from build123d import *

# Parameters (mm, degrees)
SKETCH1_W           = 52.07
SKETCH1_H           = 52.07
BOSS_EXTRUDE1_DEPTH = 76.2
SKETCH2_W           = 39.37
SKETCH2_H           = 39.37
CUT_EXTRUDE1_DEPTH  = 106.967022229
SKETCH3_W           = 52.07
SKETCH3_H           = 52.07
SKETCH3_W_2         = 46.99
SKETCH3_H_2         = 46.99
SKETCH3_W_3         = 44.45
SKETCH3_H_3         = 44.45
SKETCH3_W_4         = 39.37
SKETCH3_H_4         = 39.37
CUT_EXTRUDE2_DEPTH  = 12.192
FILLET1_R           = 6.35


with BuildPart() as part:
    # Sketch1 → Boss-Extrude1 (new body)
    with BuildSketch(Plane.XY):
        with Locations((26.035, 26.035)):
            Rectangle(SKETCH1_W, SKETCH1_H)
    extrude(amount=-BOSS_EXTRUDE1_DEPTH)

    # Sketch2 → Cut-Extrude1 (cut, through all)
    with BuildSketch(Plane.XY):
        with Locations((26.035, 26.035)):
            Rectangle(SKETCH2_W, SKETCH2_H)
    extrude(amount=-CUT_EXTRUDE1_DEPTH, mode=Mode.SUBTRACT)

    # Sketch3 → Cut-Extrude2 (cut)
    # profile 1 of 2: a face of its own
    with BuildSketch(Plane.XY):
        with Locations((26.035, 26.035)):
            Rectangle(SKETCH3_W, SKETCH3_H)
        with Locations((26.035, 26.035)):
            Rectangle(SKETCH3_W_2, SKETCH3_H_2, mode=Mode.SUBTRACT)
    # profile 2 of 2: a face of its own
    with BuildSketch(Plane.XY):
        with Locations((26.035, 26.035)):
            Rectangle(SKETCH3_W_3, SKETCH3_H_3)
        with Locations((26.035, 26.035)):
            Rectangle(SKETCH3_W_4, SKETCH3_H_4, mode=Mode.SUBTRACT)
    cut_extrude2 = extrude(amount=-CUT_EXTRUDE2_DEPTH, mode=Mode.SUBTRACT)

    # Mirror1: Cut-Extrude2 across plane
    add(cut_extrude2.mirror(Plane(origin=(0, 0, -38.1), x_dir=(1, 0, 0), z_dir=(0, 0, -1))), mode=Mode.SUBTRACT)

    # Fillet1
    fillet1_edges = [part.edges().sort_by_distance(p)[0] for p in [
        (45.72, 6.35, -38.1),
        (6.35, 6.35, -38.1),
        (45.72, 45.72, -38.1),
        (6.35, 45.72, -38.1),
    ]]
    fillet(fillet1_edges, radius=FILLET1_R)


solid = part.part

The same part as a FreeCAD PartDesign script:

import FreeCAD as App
import Part
import Sketcher

V = App.Vector
Q = App.Units.Quantity


def edges_at(feature, points):
    """Names of the edges that pass closest to the given points."""
    edges = feature.Shape.Edges
    near = lambda p: min(range(len(edges)), key=lambda i: edges[i].distToShape(Part.Vertex(*p))[0])
    return sorted({f"Edge{near(p) + 1}" for p in points})

doc = App.newDocument("Part")
body = doc.addObject("PartDesign::Body", "Body")

# Sketch on XY plane
sketch1 = body.newObject("Sketcher::SketchObject", "Sketch")
sketch1.AttachmentSupport = (doc.getObject("XY_Plane"), [""])
sketch1.MapMode = "FlatFace"
sketch1.addGeometry(Part.LineSegment(V(0, 52, 0), V(0, 0, 0)), False)
sketch1.addGeometry(Part.LineSegment(V(0, 0, 0), V(52, 0, 0)), False)
sketch1.addGeometry(Part.LineSegment(V(52, 0, 0), V(52, 52, 0)), False)
sketch1.addGeometry(Part.LineSegment(V(52, 52, 0), V(0, 52, 0)), False)
sketch1.addConstraint(Sketcher.Constraint("Coincident", 0, 2, 1, 1))
sketch1.addConstraint(Sketcher.Constraint("Coincident", 1, 2, 2, 1))
sketch1.addConstraint(Sketcher.Constraint("Coincident", 2, 2, 3, 1))
sketch1.addConstraint(Sketcher.Constraint("Coincident", 3, 2, 0, 1))
sketch1.addConstraint(Sketcher.Constraint("Vertical", 0))
sketch1.addConstraint(Sketcher.Constraint("Horizontal", 1))
sketch1.addConstraint(Sketcher.Constraint("Vertical", 2))
sketch1.addConstraint(Sketcher.Constraint("Horizontal", 3))
sketch1.addConstraint(Sketcher.Constraint("Coincident", 0, 2, -1, 1))
sketch1.addConstraint(Sketcher.Constraint("Equal", 3, 0))
sketch1.addConstraint(Sketcher.Constraint("DistanceX", 1, 1, 1, 2, Q("2.05 in")))
pad1 = body.newObject("PartDesign::Pad", "Pad")
pad1.Profile = sketch1
pad1.Length = Q("3 in")
pad1.Reversed = True

# Sketch on XY plane
sketch2 = body.newObject("Sketcher::SketchObject", "Sketch001")
sketch2.AttachmentSupport = (doc.getObject("XY_Plane"), [""])
sketch2.MapMode = "FlatFace"
sketch2.addGeometry(Part.LineSegment(V(6, 46, 0), V(6, 6, 0)), False)
sketch2.addGeometry(Part.LineSegment(V(6, 6, 0), V(46, 6, 0)), False)
sketch2.addGeometry(Part.LineSegment(V(46, 6, 0), V(46, 46, 0)), False)
sketch2.addGeometry(Part.LineSegment(V(46, 46, 0), V(6, 46, 0)), False)
sketch2.addConstraint(Sketcher.Constraint("Coincident", 0, 2, 1, 1))
sketch2.addConstraint(Sketcher.Constraint("Coincident", 1, 2, 2, 1))
sketch2.addConstraint(Sketcher.Constraint("Coincident", 2, 2, 3, 1))
sketch2.addConstraint(Sketcher.Constraint("Coincident", 3, 2, 0, 1))
sketch2.addConstraint(Sketcher.Constraint("Vertical", 0))
sketch2.addConstraint(Sketcher.Constraint("Horizontal", 1))
sketch2.addConstraint(Sketcher.Constraint("Vertical", 2))
sketch2.addConstraint(Sketcher.Constraint("Horizontal", 3))
sketch2.addConstraint(Sketcher.Constraint("Equal", 3, 0))
sketch2.addConstraint(Sketcher.Constraint("DistanceX", 1, 1, 1, 2, Q("1.55 in")))
sketch2.addConstraint(Sketcher.Constraint("DistanceX", -1, 1, 1, 2, Q("1.8 in")))
sketch2.addConstraint(Sketcher.Constraint("DistanceY", -1, 1, 2, 2, Q("1.8 in")))
pocket1 = body.newObject("PartDesign::Pocket", "Pocket")
pocket1.Profile = sketch2
pocket1.Type = "ThroughAll"

# Sketch on XY plane
sketch3 = body.newObject("Sketcher::SketchObject", "Sketch002")
sketch3.AttachmentSupport = (doc.getObject("XY_Plane"), [""])
sketch3.MapMode = "FlatFace"
sketch3.addGeometry(Part.LineSegment(V(0, 52, 0), V(0, 0, 0)), False)
sketch3.addGeometry(Part.LineSegment(V(0, 0, 0), V(52, 0, 0)), False)
sketch3.addGeometry(Part.LineSegment(V(52, 0, 0), V(52, 52, 0)), False)
sketch3.addGeometry(Part.LineSegment(V(52, 52, 0), V(0, 52, 0)), False)
sketch3.addGeometry(Part.LineSegment(V(50, 3, 0), V(3, 3, 0)), False)
sketch3.addGeometry(Part.LineSegment(V(3, 3, 0), V(3, 50, 0)), False)
sketch3.addGeometry(Part.LineSegment(V(3, 50, 0), V(50, 50, 0)), False)
sketch3.addGeometry(Part.LineSegment(V(50, 50, 0), V(50, 3, 0)), False)
sketch3.addGeometry(Part.LineSegment(V(4, 48, 0), V(4, 4, 0)), False)
sketch3.addGeometry(Part.LineSegment(V(4, 4, 0), V(48, 4, 0)), False)
sketch3.addGeometry(Part.LineSegment(V(48, 4, 0), V(48, 48, 0)), False)
sketch3.addGeometry(Part.LineSegment(V(48, 48, 0), V(4, 48, 0)), False)
sketch3.addGeometry(Part.LineSegment(V(46, 6, 0), V(6, 6, 0)), False)
sketch3.addGeometry(Part.LineSegment(V(6, 6, 0), V(6, 46, 0)), False)
sketch3.addGeometry(Part.LineSegment(V(6, 46, 0), V(46, 46, 0)), False)
sketch3.addGeometry(Part.LineSegment(V(46, 46, 0), V(46, 6, 0)), False)
sketch3.addConstraint(Sketcher.Constraint("Coincident", 0, 2, 1, 1))
sketch3.addConstraint(Sketcher.Constraint("Coincident", 1, 2, 2, 1))
sketch3.addConstraint(Sketcher.Constraint("Coincident", 2, 2, 3, 1))
sketch3.addConstraint(Sketcher.Constraint("Coincident", 3, 2, 0, 1))
sketch3.addConstraint(Sketcher.Constraint("Coincident", 4, 2, 5, 1))
sketch3.addConstraint(Sketcher.Constraint("Coincident", 5, 2, 6, 1))
sketch3.addConstraint(Sketcher.Constraint("Coincident", 6, 2, 7, 1))
sketch3.addConstraint(Sketcher.Constraint("Coincident", 7, 2, 4, 1))
sketch3.addConstraint(Sketcher.Constraint("Coincident", 8, 2, 9, 1))
sketch3.addConstraint(Sketcher.Constraint("Coincident", 9, 2, 10, 1))
sketch3.addConstraint(Sketcher.Constraint("Coincident", 10, 2, 11, 1))
sketch3.addConstraint(Sketcher.Constraint("Coincident", 11, 2, 8, 1))
sketch3.addConstraint(Sketcher.Constraint("Coincident", 12, 2, 13, 1))
sketch3.addConstraint(Sketcher.Constraint("Coincident", 13, 2, 14, 1))
sketch3.addConstraint(Sketcher.Constraint("Coincident", 14, 2, 15, 1))
sketch3.addConstraint(Sketcher.Constraint("Coincident", 15, 2, 12, 1))
sketch3.addConstraint(Sketcher.Constraint("Vertical", 0))
sketch3.addConstraint(Sketcher.Constraint("Horizontal", 1))
sketch3.addConstraint(Sketcher.Constraint("Vertical", 2))
sketch3.addConstraint(Sketcher.Constraint("Horizontal", 3))
sketch3.addConstraint(Sketcher.Constraint("Horizontal", 4))
sketch3.addConstraint(Sketcher.Constraint("Vertical", 5))
sketch3.addConstraint(Sketcher.Constraint("Horizontal", 6))
sketch3.addConstraint(Sketcher.Constraint("Vertical", 7))
sketch3.addConstraint(Sketcher.Constraint("Vertical", 8))
sketch3.addConstraint(Sketcher.Constraint("Horizontal", 9))
sketch3.addConstraint(Sketcher.Constraint("Vertical", 10))
sketch3.addConstraint(Sketcher.Constraint("Horizontal", 11))
sketch3.addConstraint(Sketcher.Constraint("Horizontal", 12))
sketch3.addConstraint(Sketcher.Constraint("Vertical", 13))
sketch3.addConstraint(Sketcher.Constraint("Horizontal", 14))
sketch3.addConstraint(Sketcher.Constraint("Vertical", 15))
sketch3.addConstraint(Sketcher.Constraint("Coincident", 0, 2, -1, 1))
sketch3.addConstraint(Sketcher.Constraint("Equal", 3, 0))
sketch3.addConstraint(Sketcher.Constraint("Equal", 6, 5))
sketch3.addConstraint(Sketcher.Constraint("Equal", 11, 8))
sketch3.addConstraint(Sketcher.Constraint("Equal", 14, 13))
sketch3.addConstraint(Sketcher.Constraint("DistanceX", 1, 1, 1, 2, Q("2.05 in")))
sketch3.addConstraint(Sketcher.Constraint("DistanceX", 4, 2, 4, 1, Q("1.85 in")))
sketch3.addConstraint(Sketcher.Constraint("DistanceX", 9, 1, 9, 2, Q("1.75 in")))
sketch3.addConstraint(Sketcher.Constraint("DistanceX", 12, 2, 12, 1, Q("1.55 in")))
sketch3.addConstraint(Sketcher.Constraint("DistanceX", -1, 1, 4, 2, Q("0.1 in")))
sketch3.addConstraint(Sketcher.Constraint("DistanceY", -1, 1, 4, 2, Q("0.1 in")))
sketch3.addConstraint(Sketcher.Constraint("DistanceX", -1, 1, 9, 2, Q("1.9 in")))
sketch3.addConstraint(Sketcher.Constraint("DistanceY", -1, 1, 10, 2, Q("1.9 in")))
sketch3.addConstraint(Sketcher.Constraint("DistanceY", -1, 1, 13, 2, Q("1.8 in")))
sketch3.addConstraint(Sketcher.Constraint("DistanceX", -1, 1, 14, 2, Q("1.8 in")))
pocket2 = body.newObject("PartDesign::Pocket", "Pocket001")
pocket2.Profile = sketch3
pocket2.Length = Q("0.48 in")
doc.recompute()

datumplane = body.newObject("PartDesign::Plane", "DatumPlane")
datumplane.AttachmentSupport = (doc.getObject("XY_Plane"), [""])
datumplane.MapMode = "FlatFace"
datumplane.AttachmentOffset = App.Placement(V(0, 0, -1.5 * 25.4), App.Rotation())
mirrored = body.newObject("PartDesign::Mirrored", "Mirrored")
mirrored.Originals = [pocket2]
mirrored.MirrorPlane = (datumplane, [""])
body.Tip = mirrored
doc.recompute()

fillet = body.newObject("PartDesign::Fillet", "Fillet")
fillet.Base = (mirrored, edges_at(mirrored, [
    (45.72, 6.35, -38.1),
    (6.35, 6.35, -38.1),
    (45.72, 45.72, -38.1),
    (6.35, 45.72, -38.1),
]))
fillet.Radius = Q("0.25 in")

doc.recompute()
